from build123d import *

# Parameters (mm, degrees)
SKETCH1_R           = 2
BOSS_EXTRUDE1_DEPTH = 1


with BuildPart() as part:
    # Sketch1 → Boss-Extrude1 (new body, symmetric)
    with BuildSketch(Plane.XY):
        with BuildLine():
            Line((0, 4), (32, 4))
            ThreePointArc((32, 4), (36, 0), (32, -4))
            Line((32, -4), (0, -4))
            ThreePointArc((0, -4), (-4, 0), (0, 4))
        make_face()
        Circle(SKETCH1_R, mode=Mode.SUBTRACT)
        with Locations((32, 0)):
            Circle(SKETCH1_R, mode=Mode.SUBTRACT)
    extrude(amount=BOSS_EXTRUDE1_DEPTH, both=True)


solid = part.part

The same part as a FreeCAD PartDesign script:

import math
import FreeCAD as App
import Part
import Sketcher
Q = App.Units.Quantity

doc = App.newDocument("Part")
params = doc.addObject("Spreadsheet::Sheet", "Params")
for row, (alias, value) in enumerate([
    ("sketch1_diameter", "4 mm"),
    ("sketch1_radius", "4 mm"),
    ("sketch1_width", "32 mm"),
    ("pad1_length", "2 mm"),
], start=1):
    params.set(f"A{row}", alias)
    params.set(f"B{row}", "=" + value)
    params.setAlias(f"B{row}", alias)

body = doc.addObject("PartDesign::Body", "Body")

# Sketch on XY plane
sketch1 = body.newObject("Sketcher::SketchObject", "Sketch")
sketch1.AttachmentSupport = (doc.getObject("XY_Plane"), [""])
sketch1.MapMode = "FlatFace"
sketch1.addGeometry([
    Part.LineSegment(App.Vector(32, 4, 0), App.Vector(0, 4, 0)),  # 0
    Part.ArcOfCircle(Part.Circle(App.Vector(0, 0, 0), App.Vector(0, 0, 1), 4), math.radians(90), math.radians(270)),  # 1
    Part.LineSegment(App.Vector(0, -4, 0), App.Vector(32, -4, 0)),  # 2
    Part.ArcOfCircle(Part.Circle(App.Vector(32, 0, 0), App.Vector(0, 0, 1), 4), math.radians(-90), math.radians(90)),  # 3
    Part.Circle(App.Vector(32, 0, 0), App.Vector(0, 0, 1), 2),  # 4
    Part.Circle(App.Vector(0, 0, 0), App.Vector(0, 0, 1), 2),  # 5
], False)
sketch1.addConstraint([
    Sketcher.Constraint("Tangent", 0, 2, 1, 1),
    Sketcher.Constraint("Tangent", 1, 2, 2, 1),
    Sketcher.Constraint("Tangent", 2, 2, 3, 1),
    Sketcher.Constraint("Tangent", 3, 2, 0, 1),
    Sketcher.Constraint("Horizontal", 0),
    Sketcher.Constraint("Horizontal", 2),
    Sketcher.Constraint("Coincident", 1, 3, -1, 1),
    Sketcher.Constraint("Coincident", 5, 3, -1, 1),
    Sketcher.Constraint("Coincident", 4, 3, 3, 3),
    Sketcher.Constraint("Equal", 4, 5),
    Sketcher.Constraint("Diameter", 4, Q("4 mm")),
    Sketcher.Constraint("Radius", 1, Q("4 mm")),
    Sketcher.Constraint("DistanceX", 0, 2, 0, 1, Q("32 mm")),
])
sketch1.setExpression("Constraints[10]", "Params.sketch1_diameter")
sketch1.setExpression("Constraints[11]", "Params.sketch1_radius")
sketch1.setExpression("Constraints[12]", "Params.sketch1_width")
pad1 = body.newObject("PartDesign::Pad", "Pad")
pad1.Profile = sketch1
pad1.setExpression("Length", "Params.pad1_length")
pad1.Midplane = True

doc.recompute()
